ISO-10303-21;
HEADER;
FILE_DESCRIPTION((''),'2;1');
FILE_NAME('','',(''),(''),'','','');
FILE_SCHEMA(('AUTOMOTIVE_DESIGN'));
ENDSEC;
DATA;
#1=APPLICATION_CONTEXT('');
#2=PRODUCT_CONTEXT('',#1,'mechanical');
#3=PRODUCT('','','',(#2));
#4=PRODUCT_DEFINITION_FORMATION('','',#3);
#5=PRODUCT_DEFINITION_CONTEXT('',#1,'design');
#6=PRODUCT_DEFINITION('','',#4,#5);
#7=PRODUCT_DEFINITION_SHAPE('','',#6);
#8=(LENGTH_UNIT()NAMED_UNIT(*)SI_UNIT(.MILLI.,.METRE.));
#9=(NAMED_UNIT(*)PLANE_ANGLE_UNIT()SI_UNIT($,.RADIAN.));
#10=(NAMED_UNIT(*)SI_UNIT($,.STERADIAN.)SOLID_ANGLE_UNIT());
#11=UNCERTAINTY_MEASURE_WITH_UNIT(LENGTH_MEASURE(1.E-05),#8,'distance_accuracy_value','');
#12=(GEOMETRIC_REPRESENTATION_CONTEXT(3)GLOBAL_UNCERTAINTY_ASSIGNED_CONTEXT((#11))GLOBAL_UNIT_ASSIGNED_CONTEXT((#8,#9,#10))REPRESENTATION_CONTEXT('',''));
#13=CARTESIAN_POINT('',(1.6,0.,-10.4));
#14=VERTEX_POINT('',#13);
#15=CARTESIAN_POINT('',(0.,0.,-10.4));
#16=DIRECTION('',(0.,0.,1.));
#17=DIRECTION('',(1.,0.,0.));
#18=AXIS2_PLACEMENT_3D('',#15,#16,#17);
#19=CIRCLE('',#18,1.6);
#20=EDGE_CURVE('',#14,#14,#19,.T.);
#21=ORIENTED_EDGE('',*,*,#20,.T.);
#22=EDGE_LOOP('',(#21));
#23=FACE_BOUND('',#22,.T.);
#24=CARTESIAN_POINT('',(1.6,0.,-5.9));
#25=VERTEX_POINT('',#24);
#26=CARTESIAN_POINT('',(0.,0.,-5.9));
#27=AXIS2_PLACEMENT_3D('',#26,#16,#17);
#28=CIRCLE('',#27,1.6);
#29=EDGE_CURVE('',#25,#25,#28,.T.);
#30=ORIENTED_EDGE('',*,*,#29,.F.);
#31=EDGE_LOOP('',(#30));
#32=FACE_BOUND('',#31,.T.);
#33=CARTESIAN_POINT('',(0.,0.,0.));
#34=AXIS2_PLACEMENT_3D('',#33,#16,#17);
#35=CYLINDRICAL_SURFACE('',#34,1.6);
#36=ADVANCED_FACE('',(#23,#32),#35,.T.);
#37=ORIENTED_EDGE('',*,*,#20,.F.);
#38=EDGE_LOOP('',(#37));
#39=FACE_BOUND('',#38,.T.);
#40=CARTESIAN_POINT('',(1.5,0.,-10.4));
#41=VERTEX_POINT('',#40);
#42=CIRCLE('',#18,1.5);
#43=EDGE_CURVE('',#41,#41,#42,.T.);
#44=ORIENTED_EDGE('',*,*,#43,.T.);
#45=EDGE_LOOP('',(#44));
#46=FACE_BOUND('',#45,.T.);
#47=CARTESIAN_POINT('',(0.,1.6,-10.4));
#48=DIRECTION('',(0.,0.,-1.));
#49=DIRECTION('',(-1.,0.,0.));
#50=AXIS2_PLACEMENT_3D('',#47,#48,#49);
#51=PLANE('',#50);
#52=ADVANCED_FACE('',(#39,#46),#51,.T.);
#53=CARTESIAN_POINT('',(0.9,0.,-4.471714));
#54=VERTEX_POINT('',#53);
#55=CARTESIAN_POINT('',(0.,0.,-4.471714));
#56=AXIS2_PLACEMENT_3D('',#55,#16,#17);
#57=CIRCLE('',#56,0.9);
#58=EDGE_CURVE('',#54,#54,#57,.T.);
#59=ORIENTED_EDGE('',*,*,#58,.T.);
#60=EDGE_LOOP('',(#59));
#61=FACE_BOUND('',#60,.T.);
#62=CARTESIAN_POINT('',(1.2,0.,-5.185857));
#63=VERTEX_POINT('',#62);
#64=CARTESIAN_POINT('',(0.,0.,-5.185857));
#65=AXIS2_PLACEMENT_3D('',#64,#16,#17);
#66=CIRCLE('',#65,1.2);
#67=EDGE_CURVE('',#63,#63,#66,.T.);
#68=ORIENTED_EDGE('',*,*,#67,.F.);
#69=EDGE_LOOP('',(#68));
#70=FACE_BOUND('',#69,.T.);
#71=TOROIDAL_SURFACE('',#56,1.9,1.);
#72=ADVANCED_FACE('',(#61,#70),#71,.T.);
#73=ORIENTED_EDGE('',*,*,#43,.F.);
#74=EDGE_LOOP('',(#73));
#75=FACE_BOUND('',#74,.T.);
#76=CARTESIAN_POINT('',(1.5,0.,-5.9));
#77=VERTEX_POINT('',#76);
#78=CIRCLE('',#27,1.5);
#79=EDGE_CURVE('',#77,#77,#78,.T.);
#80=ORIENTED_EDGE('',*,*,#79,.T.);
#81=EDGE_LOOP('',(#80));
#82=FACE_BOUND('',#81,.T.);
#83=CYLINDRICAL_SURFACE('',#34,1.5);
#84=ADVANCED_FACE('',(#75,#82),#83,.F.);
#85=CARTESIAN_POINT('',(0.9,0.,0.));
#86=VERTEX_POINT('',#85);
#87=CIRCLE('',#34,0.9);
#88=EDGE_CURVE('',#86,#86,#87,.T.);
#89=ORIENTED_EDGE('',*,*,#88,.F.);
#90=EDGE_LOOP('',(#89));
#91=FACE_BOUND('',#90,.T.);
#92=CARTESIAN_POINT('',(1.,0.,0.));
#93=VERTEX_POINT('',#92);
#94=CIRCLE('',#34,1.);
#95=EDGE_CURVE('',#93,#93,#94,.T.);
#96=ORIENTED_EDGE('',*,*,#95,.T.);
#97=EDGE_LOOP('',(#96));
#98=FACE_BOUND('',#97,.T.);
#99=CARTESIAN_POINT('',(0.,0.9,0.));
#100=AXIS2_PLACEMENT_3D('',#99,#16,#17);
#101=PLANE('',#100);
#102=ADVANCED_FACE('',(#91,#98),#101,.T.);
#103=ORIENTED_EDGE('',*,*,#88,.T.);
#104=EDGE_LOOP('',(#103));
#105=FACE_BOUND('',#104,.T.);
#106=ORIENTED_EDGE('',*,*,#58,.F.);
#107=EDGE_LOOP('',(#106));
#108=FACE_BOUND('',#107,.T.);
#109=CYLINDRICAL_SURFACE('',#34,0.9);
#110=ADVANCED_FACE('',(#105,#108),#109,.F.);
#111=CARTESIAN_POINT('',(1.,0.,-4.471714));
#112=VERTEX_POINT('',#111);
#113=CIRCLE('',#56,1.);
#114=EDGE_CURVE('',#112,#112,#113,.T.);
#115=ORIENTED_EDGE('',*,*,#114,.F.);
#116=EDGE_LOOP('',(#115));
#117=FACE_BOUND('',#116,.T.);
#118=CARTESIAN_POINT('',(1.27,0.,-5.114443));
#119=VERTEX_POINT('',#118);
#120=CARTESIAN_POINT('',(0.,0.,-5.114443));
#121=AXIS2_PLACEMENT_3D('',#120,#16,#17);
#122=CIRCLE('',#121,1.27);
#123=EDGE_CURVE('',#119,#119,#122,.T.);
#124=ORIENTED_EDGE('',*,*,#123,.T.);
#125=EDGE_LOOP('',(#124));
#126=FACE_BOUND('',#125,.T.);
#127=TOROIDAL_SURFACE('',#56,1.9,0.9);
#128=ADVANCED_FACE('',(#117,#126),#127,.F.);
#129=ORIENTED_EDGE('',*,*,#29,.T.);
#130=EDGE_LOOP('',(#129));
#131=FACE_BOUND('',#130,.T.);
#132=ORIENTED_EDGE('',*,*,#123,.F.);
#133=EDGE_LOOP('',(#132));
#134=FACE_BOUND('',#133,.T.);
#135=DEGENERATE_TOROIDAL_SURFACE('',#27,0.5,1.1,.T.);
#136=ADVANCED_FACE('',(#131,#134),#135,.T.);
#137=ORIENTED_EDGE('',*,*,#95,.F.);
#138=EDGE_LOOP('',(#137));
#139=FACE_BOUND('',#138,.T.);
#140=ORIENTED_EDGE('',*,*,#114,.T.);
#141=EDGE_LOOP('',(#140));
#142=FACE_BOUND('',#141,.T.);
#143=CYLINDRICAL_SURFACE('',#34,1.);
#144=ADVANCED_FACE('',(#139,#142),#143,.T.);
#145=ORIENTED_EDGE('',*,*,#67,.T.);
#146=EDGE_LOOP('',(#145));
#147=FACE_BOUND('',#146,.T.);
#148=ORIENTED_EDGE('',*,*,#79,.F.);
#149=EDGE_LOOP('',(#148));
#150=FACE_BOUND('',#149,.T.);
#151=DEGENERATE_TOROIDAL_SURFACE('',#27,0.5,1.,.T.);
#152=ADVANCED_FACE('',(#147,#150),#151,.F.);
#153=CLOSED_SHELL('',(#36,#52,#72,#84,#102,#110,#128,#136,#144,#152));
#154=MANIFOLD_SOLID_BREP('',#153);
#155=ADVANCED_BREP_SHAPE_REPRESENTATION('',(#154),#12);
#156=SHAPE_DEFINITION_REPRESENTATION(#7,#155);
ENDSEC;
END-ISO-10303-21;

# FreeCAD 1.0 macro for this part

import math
import FreeCAD as App
import Part
import Sketcher
from FreeCAD import Vector
Q = App.Units.Quantity

doc = App.newDocument("Part")
body = doc.addObject("PartDesign::Body", "Body")

# Sketch on YZ plane
sketch1 = doc.addObject("Sketcher::SketchObject", "Sketch")
body.addObject(sketch1)
sketch1.AttachmentSupport = (doc.YZ_Plane, [""])
sketch1.MapMode = "FlatFace"
sketch1.addGeometry([
    Part.LineSegment(Vector(0.9, 0, 0), Vector(0.9, -4.47, 0)),  # 0
    Part.ArcOfCircle(Part.Circle(Vector(1.9, -4.47, 0), Vector(0, 0, 1), 1), math.radians(180), math.radians(226)),  # 1
    Part.ArcOfCircle(Part.Circle(Vector(0.5, -5.9, 0), Vector(0, 0, 1), 1), math.radians(0), math.radians(46)),  # 2
    Part.LineSegment(Vector(1.5, -5.9, 0), Vector(1.5, -10.4, 0)),  # 3
    Part.LineSegment(Vector(1.5, -10.4, 0), Vector(1.6, -10.4, 0)),  # 4
    Part.LineSegment(Vector(1.6, -10.4, 0), Vector(1.6, -5.9, 0)),  # 5
    Part.ArcOfCircle(Part.Circle(Vector(0.5, -5.9, 0), Vector(0, 0, 1), 1.1), math.radians(0), math.radians(46)),  # 6
    Part.ArcOfCircle(Part.Circle(Vector(1.9, -4.47, 0), Vector(0, 0, 1), 0.9), math.radians(-180), math.radians(-134)),  # 7
    Part.LineSegment(Vector(1, -4.47, 0), Vector(1, 0, 0)),  # 8
    Part.LineSegment(Vector(1, 0, 0), Vector(0.9, 0, 0)),  # 9
], False)
sketch1.addConstraint([
    Sketcher.Constraint("Tangent", 0, 2, 1, 1),
    Sketcher.Constraint("Tangent", 1, 2, 2, 2),
    Sketcher.Constraint("Tangent", 2, 1, 3, 1),
    Sketcher.Constraint("Coincident", 3, 2, 4, 1),
    Sketcher.Constraint("Coincident", 4, 2, 5, 1),
    Sketcher.Constraint("Tangent", 5, 2, 6, 1),
    Sketcher.Constraint("Tangent", 6, 2, 7, 2),
    Sketcher.Constraint("Tangent", 7, 1, 8, 1),
    Sketcher.Constraint("Coincident", 8, 2, 9, 1),
    Sketcher.Constraint("Coincident", 9, 2, 0, 1),
    Sketcher.Constraint("Vertical", 0),
    Sketcher.Constraint("Vertical", 3),
    Sketcher.Constraint("Horizontal", 4),
    Sketcher.Constraint("Vertical", 5),
    Sketcher.Constraint("Vertical", 8),
    Sketcher.Constraint("Horizontal", 9),
    Sketcher.Constraint("Coincident", 6, 3, 2, 3),
    Sketcher.Constraint("Coincident", 7, 3, 1, 3),
    Sketcher.Constraint("Equal", 1, 2),
    Sketcher.Constraint("PointOnObject", 8, 2, -1),
    Sketcher.Constraint("Radius", 1, Q("1 mm")),
    Sketcher.Constraint("Radius", 6, Q("1.1 mm")),
    Sketcher.Constraint("DistanceY", 3, 2, 3, 1, Q("4.5 mm")),
    Sketcher.Constraint("DistanceX", -1, 1, 7, 1, Q("1 mm")),
    Sketcher.Constraint("DistanceX", -1, 1, 2, 3, Q("0.5 mm")),
    Sketcher.Constraint("DistanceY", 2, 3, -1, 1, Q("5.9 mm")),
])
revolution = doc.addObject("PartDesign::Revolution", "Revolution")
body.addObject(revolution)
revolution.Profile = sketch1
revolution.ReferenceAxis = (sketch1, ["V_Axis"])
revolution.Angle = 360

doc.recompute()
